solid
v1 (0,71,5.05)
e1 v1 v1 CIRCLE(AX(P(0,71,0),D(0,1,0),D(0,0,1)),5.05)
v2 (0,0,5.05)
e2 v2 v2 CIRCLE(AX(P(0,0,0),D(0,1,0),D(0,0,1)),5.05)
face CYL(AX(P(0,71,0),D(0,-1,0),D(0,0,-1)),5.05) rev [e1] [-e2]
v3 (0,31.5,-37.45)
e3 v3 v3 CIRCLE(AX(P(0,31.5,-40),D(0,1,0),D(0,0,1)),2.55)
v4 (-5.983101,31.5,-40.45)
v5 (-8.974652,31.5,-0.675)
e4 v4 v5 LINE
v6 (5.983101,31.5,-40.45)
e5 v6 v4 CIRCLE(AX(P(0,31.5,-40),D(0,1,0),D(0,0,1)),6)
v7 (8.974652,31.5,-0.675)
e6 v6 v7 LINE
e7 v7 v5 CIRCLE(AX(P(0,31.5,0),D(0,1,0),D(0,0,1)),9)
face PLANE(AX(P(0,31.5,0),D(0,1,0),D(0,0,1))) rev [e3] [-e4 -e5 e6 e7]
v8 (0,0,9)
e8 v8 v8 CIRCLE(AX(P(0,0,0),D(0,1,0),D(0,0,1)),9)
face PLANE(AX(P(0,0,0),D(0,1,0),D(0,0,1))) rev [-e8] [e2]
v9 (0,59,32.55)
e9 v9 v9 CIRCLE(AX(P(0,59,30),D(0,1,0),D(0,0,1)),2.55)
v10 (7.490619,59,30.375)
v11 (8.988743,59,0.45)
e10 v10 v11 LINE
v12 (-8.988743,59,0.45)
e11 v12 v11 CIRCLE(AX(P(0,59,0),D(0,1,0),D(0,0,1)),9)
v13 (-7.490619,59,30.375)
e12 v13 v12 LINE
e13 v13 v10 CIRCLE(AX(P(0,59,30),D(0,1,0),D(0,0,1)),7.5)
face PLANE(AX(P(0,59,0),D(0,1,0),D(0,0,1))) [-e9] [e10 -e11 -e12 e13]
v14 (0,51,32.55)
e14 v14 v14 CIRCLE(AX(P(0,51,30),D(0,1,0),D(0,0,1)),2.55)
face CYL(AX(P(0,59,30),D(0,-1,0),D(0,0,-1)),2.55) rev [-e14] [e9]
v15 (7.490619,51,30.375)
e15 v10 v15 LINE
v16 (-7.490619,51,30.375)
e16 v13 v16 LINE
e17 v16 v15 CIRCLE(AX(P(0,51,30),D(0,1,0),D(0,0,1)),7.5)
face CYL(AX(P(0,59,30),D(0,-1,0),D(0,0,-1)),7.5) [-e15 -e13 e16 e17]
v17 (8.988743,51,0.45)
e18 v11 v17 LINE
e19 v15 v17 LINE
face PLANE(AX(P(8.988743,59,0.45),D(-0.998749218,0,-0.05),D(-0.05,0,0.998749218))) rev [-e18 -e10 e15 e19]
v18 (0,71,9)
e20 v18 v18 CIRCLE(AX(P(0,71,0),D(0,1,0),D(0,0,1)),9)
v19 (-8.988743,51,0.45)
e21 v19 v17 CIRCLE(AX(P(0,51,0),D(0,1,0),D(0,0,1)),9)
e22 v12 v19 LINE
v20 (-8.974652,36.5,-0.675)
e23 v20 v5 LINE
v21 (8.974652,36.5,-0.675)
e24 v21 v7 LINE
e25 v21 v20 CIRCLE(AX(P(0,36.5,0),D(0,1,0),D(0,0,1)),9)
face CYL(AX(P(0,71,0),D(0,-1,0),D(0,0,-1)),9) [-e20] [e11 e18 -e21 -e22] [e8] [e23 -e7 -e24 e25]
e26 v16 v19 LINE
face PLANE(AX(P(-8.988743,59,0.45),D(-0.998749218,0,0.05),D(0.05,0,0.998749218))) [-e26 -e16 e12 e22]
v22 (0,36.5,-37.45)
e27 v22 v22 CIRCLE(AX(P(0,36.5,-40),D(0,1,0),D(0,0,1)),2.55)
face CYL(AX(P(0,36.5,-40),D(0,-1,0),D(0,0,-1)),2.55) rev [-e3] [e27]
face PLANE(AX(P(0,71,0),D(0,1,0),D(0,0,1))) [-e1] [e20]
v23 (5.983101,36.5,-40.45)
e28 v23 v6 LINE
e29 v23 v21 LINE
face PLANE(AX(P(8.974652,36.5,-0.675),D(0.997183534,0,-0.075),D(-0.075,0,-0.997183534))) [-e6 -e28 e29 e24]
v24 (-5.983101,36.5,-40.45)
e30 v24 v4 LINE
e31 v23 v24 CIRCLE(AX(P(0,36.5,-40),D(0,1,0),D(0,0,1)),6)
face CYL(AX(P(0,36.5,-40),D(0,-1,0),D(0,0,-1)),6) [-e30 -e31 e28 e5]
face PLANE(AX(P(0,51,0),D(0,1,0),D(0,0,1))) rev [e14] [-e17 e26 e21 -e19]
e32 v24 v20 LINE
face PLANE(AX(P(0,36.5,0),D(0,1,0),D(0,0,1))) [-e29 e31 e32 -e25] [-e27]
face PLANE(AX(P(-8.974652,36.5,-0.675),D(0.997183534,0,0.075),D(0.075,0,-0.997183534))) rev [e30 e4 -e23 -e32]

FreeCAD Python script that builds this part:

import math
import FreeCAD as App
import Part
import Sketcher

doc = App.newDocument("Part")
body = doc.addObject("PartDesign::Body", "Body")

# Sketch on XZ plane
sketch1 = body.newObject("Sketcher::SketchObject", "Sketch")
sketch1.AttachmentSupport = (doc.getObject("XZ_Plane"), [""])
sketch1.MapMode = "FlatFace"
sketch1.addGeometry([
    Part.Circle(App.Vector(0, 0, 0), App.Vector(0, 0, 1), 9),
    Part.Circle(App.Vector(0, 0, 0), App.Vector(0, 0, 1), 5),
], False)
sketch1.addConstraint([
    Sketcher.Constraint("Coincident", 0, 3, -1, 1),
    Sketcher.Constraint("Coincident", 1, 3, -1, 1),
    Sketcher.Constraint("Diameter", 0, 18.0),
    Sketcher.Constraint("Diameter", 1, 10.1),
])
pad1 = body.newObject("PartDesign::Pad", "Pad")
pad1.Profile = sketch1
pad1.Length = 71
pad1.Reversed = True

# Sketch on XZ plane
sketch2 = body.newObject("Sketcher::SketchObject", "Sketch001")
sketch2.AttachmentSupport = (doc.getObject("XZ_Plane"), [""])
sketch2.MapMode = "FlatFace"
sketch2.AttachmentOffset = App.Placement(App.Vector(0, 0, -34), App.Rotation())
sketch2.addGeometry([
    Part.ArcOfCircle(Part.Circle(App.Vector(0, 0, 0), App.Vector(0, 0, 1), 9), math.radians(-176), math.radians(-4)),  # 0
    Part.LineSegment(App.Vector(9, -0.7, 0), App.Vector(6, -40.5, 0)),  # 1
    Part.ArcOfCircle(Part.Circle(App.Vector(0, -40, 0), App.Vector(0, 0, 1), 6), math.radians(-176), math.radians(-4)),  # 2
    Part.LineSegment(App.Vector(-6, -40.5, 0), App.Vector(-9, -0.7, 0)),  # 3
    Part.Circle(App.Vector(0, -40, 0), App.Vector(0, 0, 1), 2.5),  # 4
], False)
sketch2.addConstraint([
    Sketcher.Constraint("Tangent", 0, 2, 1, 1),
    Sketcher.Constraint("Tangent", 1, 2, 2, 2),
    Sketcher.Constraint("Tangent", 2, 1, 3, 1),
    Sketcher.Constraint("Tangent", 3, 2, 0, 1),
    Sketcher.Constraint("Coincident", 0, 3, -1, 1),
    Sketcher.Constraint("Coincident", 4, 3, 2, 3),
    Sketcher.Constraint("PointOnObject", 2, 3, -2),
    Sketcher.Constraint("Radius", 0, 9.0),
    Sketcher.Constraint("Radius", 2, 6.0),
    Sketcher.Constraint("Diameter", 4, 5.1),
    Sketcher.Constraint("DistanceY", 2, 3, -1, 1, 40.0),
])
pad2 = body.newObject("PartDesign::Pad", "Pad001")
pad2.Profile = sketch2
pad2.Length = 5
pad2.Midplane = True

# Sketch on XZ plane
sketch3 = body.newObject("Sketcher::SketchObject", "Sketch002")
sketch3.AttachmentSupport = (doc.getObject("XZ_Plane"), [""])
sketch3.MapMode = "FlatFace"
sketch3.AttachmentOffset = App.Placement(App.Vector(0, 0, -55), App.Rotation())
sketch3.addGeometry([
    Part.ArcOfCircle(Part.Circle(App.Vector(0, 0, 0), App.Vector(0, 0, 1), 9), math.radians(3), math.radians(177)),  # 0
    Part.LineSegment(App.Vector(-9, 0.5, 0), App.Vector(-7.5, 30.4, 0)),  # 1
    Part.ArcOfCircle(Part.Circle(App.Vector(0, 30, 0), App.Vector(0, 0, 1), 7.5), math.radians(3), math.radians(177)),  # 2
    Part.LineSegment(App.Vector(7.5, 30.4, 0), App.Vector(9, 0.5, 0)),  # 3
    Part.Circle(App.Vector(0, 30, 0), App.Vector(0, 0, 1), 2.5),  # 4
], False)
sketch3.addConstraint([
    Sketcher.Constraint("Tangent", 0, 2, 1, 1),
    Sketcher.Constraint("Tangent", 1, 2, 2, 2),
    Sketcher.Constraint("Tangent", 2, 1, 3, 1),
    Sketcher.Constraint("Tangent", 3, 2, 0, 1),
    Sketcher.Constraint("Coincident", 0, 3, -1, 1),
    Sketcher.Constraint("Coincident", 4, 3, 2, 3),
    Sketcher.Constraint("PointOnObject", 2, 3, -2),
    Sketcher.Constraint("Radius", 0, 9.0),
    Sketcher.Constraint("Diameter", 4, 5.1),
    Sketcher.Constraint("Radius", 2, 7.5),
    Sketcher.Constraint("DistanceY", -1, 1, 2, 3, 30.0),
])
pad3 = body.newObject("PartDesign::Pad", "Pad002")
pad3.Profile = sketch3
pad3.Length = 8
pad3.Midplane = True

doc.recompute()
